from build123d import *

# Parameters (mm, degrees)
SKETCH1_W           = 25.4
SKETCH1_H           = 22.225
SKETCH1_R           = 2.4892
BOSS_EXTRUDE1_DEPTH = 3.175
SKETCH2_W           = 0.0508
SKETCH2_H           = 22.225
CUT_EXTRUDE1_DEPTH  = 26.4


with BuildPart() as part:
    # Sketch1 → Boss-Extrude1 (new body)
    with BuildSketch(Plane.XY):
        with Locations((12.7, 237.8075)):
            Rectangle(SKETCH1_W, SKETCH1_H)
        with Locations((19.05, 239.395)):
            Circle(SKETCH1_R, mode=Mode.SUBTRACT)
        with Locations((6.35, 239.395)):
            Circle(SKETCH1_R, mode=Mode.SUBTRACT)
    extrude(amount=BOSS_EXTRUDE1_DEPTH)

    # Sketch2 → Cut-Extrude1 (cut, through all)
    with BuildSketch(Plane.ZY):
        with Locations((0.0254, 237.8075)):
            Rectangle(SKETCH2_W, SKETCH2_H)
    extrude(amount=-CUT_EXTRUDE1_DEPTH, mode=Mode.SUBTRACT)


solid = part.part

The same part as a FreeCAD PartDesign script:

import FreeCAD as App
import Part
import Sketcher
Q = App.Units.Quantity


def add_polygon(sketch, points):
    """Adds a closed chain of lines whose ends are joined by coincident constraints."""
    first, n = sketch.GeometryCount, len(points)
    for a, b in zip(points, points[1:] + points[:1]):
        sketch.addGeometry(Part.LineSegment(App.Vector(*a, 0), App.Vector(*b, 0)), False)
    for i in range(n):
        sketch.addConstraint(Sketcher.Constraint("Coincident", first + i, 2, first + (i + 1) % n, 1))

doc = App.newDocument("Part")
params = doc.addObject("Spreadsheet::Sheet", "Params")
for row, (alias, value) in enumerate([
    ("sketch1_width", "1 in"),
    ("sketch1_diameter", "0.196 in"),
    ("sketch1_height", "0.875 in"),
    ("pad1_length", "0.125 in"),
    ("sketch2_width", "0.875 in"),
    ("sketch2_height", "0.002 in"),
], start=1):
    params.set(f"A{row}", alias)
    params.set(f"B{row}", "=" + value)
    params.setAlias(f"B{row}", alias)

body = doc.addObject("PartDesign::Body", "Body")

# Sketch on XY plane
sketch1 = body.newObject("Sketcher::SketchObject", "Sketch")
sketch1.AttachmentSupport = (doc.getObject("XY_Plane"), [""])
sketch1.MapMode = "FlatFace"
add_polygon(sketch1, [(0, 248.92), (0, 226.695), (25.4, 226.695), (25.4, 248.92)])  # lines 0-3
sketch1.addGeometry(Part.Circle(App.Vector(6.35, 239.395, 0), App.Vector(0, 0, 1), 2.4892), False)  # 4
sketch1.addGeometry(Part.Circle(App.Vector(19.05, 239.395, 0), App.Vector(0, 0, 1), 2.4892), False)  # 5
sketch1.addConstraint(Sketcher.Constraint("Vertical", 0))
sketch1.addConstraint(Sketcher.Constraint("Horizontal", 1))
sketch1.addConstraint(Sketcher.Constraint("Vertical", 2))
sketch1.addConstraint(Sketcher.Constraint("Horizontal", 3))
sketch1.addConstraint(Sketcher.Constraint("Equal", 4, 5))
sketch1.addConstraint(Sketcher.Constraint("PointOnObject", 0, 2, -2))
sketch1.addConstraint(Sketcher.Constraint("Horizontal", 4, 3, 5, 3))
sketch1.addConstraint(Sketcher.Constraint("DistanceX", 1, 1, 1, 2, Q("1 in")))
sketch1.addConstraint(Sketcher.Constraint("Diameter", 4, Q("0.196 in")))
sketch1.addConstraint(Sketcher.Constraint("DistanceY", -1, 1, 2, 2, Q("9.8 in")))
sketch1.addConstraint(Sketcher.Constraint("DistanceX", 4, 3, 5, 3, Q("0.5 in")))
sketch1.addConstraint(Sketcher.Constraint("DistanceY", 0, 2, 4, 3, Q("0.5 in")))
sketch1.addConstraint(Sketcher.Constraint("DistanceY", 0, 2, 0, 1, Q("0.875 in")))
sketch1.addConstraint(Sketcher.Constraint("DistanceX", -1, 1, 4, 3, Q("0.25 in")))
sketch1.setExpression("Constraints[11]", "Params.sketch1_width")
sketch1.setExpression("Constraints[12]", "Params.sketch1_diameter")
sketch1.setExpression("Constraints[16]", "Params.sketch1_height")
pad1 = body.newObject("PartDesign::Pad", "Pad")
pad1.Profile = sketch1
pad1.setExpression("Length", "Params.pad1_length")

# Sketch on YZ plane
sketch2 = body.newObject("Sketcher::SketchObject", "Sketch001")
sketch2.AttachmentSupport = (doc.getObject("YZ_Plane"), [""])
sketch2.MapMode = "FlatFace"
add_polygon(sketch2, [(248.92, 0), (226.695, 0), (226.695, 0.0508), (248.92, 0.0508)])  # lines 0-3
sketch2.addConstraint(Sketcher.Constraint("Horizontal", 0))
sketch2.addConstraint(Sketcher.Constraint("Vertical", 1))
sketch2.addConstraint(Sketcher.Constraint("Horizontal", 2))
sketch2.addConstraint(Sketcher.Constraint("Vertical", 3))
sketch2.addConstraint(Sketcher.Constraint("PointOnObject", 0, 2, -1))
sketch2.addConstraint(Sketcher.Constraint("DistanceX", -1, 1, 2, 2, Q("9.8 in")))
sketch2.addConstraint(Sketcher.Constraint("DistanceX", 0, 2, 0, 1, Q("0.875 in")))
sketch2.addConstraint(Sketcher.Constraint("DistanceY", 1, 1, 1, 2, Q("0.002 in")))
sketch2.setExpression("Constraints[10]", "Params.sketch2_width")
sketch2.setExpression("Constraints[11]", "Params.sketch2_height")
pocket1 = body.newObject("PartDesign::Pocket", "Pocket")
pocket1.Profile = sketch2
pocket1.Type = "ThroughAll"
pocket1.Reversed = True

doc.recompute()
